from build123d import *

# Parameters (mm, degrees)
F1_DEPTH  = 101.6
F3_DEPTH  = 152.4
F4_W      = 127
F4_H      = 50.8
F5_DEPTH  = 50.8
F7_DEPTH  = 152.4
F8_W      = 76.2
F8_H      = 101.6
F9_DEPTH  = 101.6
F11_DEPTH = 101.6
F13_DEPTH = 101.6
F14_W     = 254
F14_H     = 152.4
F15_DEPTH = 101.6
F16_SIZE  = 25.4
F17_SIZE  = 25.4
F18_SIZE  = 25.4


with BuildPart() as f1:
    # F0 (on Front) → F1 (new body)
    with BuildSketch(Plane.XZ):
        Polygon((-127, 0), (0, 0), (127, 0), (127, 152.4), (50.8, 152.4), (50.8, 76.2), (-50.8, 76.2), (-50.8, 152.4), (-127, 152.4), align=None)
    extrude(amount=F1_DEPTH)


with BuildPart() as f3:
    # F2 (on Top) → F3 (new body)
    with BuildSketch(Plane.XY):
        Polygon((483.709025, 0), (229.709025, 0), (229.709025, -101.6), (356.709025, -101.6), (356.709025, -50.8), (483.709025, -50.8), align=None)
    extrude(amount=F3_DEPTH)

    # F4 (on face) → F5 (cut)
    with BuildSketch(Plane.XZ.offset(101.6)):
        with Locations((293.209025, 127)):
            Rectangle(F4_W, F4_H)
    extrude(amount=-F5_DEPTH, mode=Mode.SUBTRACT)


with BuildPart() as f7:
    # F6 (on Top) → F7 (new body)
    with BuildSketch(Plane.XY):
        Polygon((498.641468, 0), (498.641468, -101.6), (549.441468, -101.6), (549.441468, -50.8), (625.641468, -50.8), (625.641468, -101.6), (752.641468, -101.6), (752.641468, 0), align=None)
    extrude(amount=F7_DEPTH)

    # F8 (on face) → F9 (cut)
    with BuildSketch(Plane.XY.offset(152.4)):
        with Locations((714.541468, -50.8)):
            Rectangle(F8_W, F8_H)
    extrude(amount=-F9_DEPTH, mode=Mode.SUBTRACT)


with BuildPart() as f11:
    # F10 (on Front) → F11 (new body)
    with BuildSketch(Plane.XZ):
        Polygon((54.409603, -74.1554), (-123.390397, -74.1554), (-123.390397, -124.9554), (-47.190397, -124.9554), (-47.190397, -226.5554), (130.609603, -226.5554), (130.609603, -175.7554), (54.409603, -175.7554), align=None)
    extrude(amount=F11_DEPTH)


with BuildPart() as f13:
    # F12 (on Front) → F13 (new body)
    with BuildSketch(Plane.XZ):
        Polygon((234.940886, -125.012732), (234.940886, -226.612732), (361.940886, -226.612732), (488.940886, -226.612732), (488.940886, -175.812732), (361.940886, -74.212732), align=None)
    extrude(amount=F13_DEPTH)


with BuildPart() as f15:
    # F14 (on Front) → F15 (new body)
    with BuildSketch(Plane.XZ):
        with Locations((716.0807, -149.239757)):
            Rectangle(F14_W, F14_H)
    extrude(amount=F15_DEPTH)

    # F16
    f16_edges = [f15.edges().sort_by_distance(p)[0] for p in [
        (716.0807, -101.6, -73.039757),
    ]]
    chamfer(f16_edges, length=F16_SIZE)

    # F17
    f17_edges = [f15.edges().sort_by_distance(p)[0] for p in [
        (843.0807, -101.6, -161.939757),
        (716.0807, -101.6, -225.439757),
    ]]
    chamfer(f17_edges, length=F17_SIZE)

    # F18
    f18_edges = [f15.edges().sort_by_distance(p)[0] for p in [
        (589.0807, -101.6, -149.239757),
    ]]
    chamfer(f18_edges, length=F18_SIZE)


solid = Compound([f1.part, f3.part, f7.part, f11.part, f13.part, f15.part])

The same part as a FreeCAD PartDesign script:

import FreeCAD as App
import Part
import Sketcher

V = App.Vector
Q = App.Units.Quantity


def edges_at(feature, points):
    """Names of the edges that pass closest to the given points."""
    edges = feature.Shape.Edges
    near = lambda p: min(range(len(edges)), key=lambda i: edges[i].distToShape(Part.Vertex(*p))[0])
    return sorted({f"Edge{near(p) + 1}" for p in points})

doc = App.newDocument("Part")
body = doc.addObject("PartDesign::Body", "Body")

# Sketch on XZ plane
sketch1 = body.newObject("Sketcher::SketchObject", "Sketch")
sketch1.AttachmentSupport = (doc.getObject("XZ_Plane"), [""])
sketch1.MapMode = "FlatFace"
sketch1.addGeometry(Part.LineSegment(V(-127, 0, 0), V(127, 0, 0)), False)
sketch1.addGeometry(Part.LineSegment(V(127, 0, 0), V(127, 152, 0)), False)
sketch1.addGeometry(Part.LineSegment(V(127, 152, 0), V(51, 152, 0)), False)
sketch1.addGeometry(Part.LineSegment(V(51, 152, 0), V(51, 76, 0)), False)
sketch1.addGeometry(Part.LineSegment(V(51, 76, 0), V(-51, 76, 0)), False)
sketch1.addGeometry(Part.LineSegment(V(-51, 76, 0), V(-51, 152, 0)), False)
sketch1.addGeometry(Part.LineSegment(V(-51, 152, 0), V(-127, 152, 0)), False)
sketch1.addGeometry(Part.LineSegment(V(-127, 152, 0), V(-127, 0, 0)), False)
sketch1.addConstraint(Sketcher.Constraint("Coincident", 0, 2, 1, 1))
sketch1.addConstraint(Sketcher.Constraint("Coincident", 1, 2, 2, 1))
sketch1.addConstraint(Sketcher.Constraint("Coincident", 2, 2, 3, 1))
sketch1.addConstraint(Sketcher.Constraint("Coincident", 3, 2, 4, 1))
sketch1.addConstraint(Sketcher.Constraint("Coincident", 4, 2, 5, 1))
sketch1.addConstraint(Sketcher.Constraint("Coincident", 5, 2, 6, 1))
sketch1.addConstraint(Sketcher.Constraint("Coincident", 6, 2, 7, 1))
sketch1.addConstraint(Sketcher.Constraint("Coincident", 7, 2, 0, 1))
sketch1.addConstraint(Sketcher.Constraint("Horizontal", 0))
sketch1.addConstraint(Sketcher.Constraint("Vertical", 1))
sketch1.addConstraint(Sketcher.Constraint("Horizontal", 2))
sketch1.addConstraint(Sketcher.Constraint("Vertical", 3))
sketch1.addConstraint(Sketcher.Constraint("Horizontal", 4))
sketch1.addConstraint(Sketcher.Constraint("Vertical", 5))
sketch1.addConstraint(Sketcher.Constraint("Horizontal", 6))
sketch1.addConstraint(Sketcher.Constraint("Vertical", 7))
sketch1.addConstraint(Sketcher.Constraint("Symmetric", 0, 2, 7, 2, -1, 1))
sketch1.addConstraint(Sketcher.Constraint("Symmetric", 2, 2, 5, 2, -2))
sketch1.addConstraint(Sketcher.Constraint("Equal", 6, 3))
sketch1.addConstraint(Sketcher.Constraint("DistanceX", 0, 1, 0, 2, Q("10 in")))
sketch1.addConstraint(Sketcher.Constraint("DistanceX", 2, 2, 2, 1, Q("3 in")))
sketch1.addConstraint(Sketcher.Constraint("DistanceY", 1, 1, 1, 2, Q("6 in")))
pad1 = body.newObject("PartDesign::Pad", "Pad")
pad1.Profile = sketch1
pad1.Length = Q("4 in")
body2 = doc.addObject("PartDesign::Body", "Body001")

# Sketch on XY plane
sketch2 = body2.newObject("Sketcher::SketchObject", "Sketch001")
sketch2.AttachmentSupport = (doc.getObject("XY_Plane001"), [""])
sketch2.MapMode = "FlatFace"
sketch2.addGeometry(Part.LineSegment(V(484, 0, 0), V(230, 0, 0)), False)
sketch2.addGeometry(Part.LineSegment(V(230, 0, 0), V(230, -102, 0)), False)
sketch2.addGeometry(Part.LineSegment(V(230, -102, 0), V(357, -102, 0)), False)
sketch2.addGeometry(Part.LineSegment(V(357, -102, 0), V(357, -51, 0)), False)
sketch2.addGeometry(Part.LineSegment(V(357, -51, 0), V(484, -51, 0)), False)
sketch2.addGeometry(Part.LineSegment(V(484, -51, 0), V(484, 0, 0)), False)
sketch2.addConstraint(Sketcher.Constraint("Coincident", 0, 2, 1, 1))
sketch2.addConstraint(Sketcher.Constraint("Coincident", 1, 2, 2, 1))
sketch2.addConstraint(Sketcher.Constraint("Coincident", 2, 2, 3, 1))
sketch2.addConstraint(Sketcher.Constraint("Coincident", 3, 2, 4, 1))
sketch2.addConstraint(Sketcher.Constraint("Coincident", 4, 2, 5, 1))
sketch2.addConstraint(Sketcher.Constraint("Coincident", 5, 2, 0, 1))
sketch2.addConstraint(Sketcher.Constraint("Horizontal", 0))
sketch2.addConstraint(Sketcher.Constraint("Vertical", 1))
sketch2.addConstraint(Sketcher.Constraint("Horizontal", 2))
sketch2.addConstraint(Sketcher.Constraint("Vertical", 3))
sketch2.addConstraint(Sketcher.Constraint("Horizontal", 4))
sketch2.addConstraint(Sketcher.Constraint("Vertical", 5))
sketch2.addConstraint(Sketcher.Constraint("PointOnObject", 0, 2, -1))
sketch2.addConstraint(Sketcher.Constraint("Equal", 2, 4))
sketch2.addConstraint(Sketcher.Constraint("Equal", 3, 5))
sketch2.addConstraint(Sketcher.Constraint("DistanceX", 0, 2, 0, 1, Q("10 in")))
sketch2.addConstraint(Sketcher.Constraint("DistanceY", 1, 2, 1, 1, Q("4 in")))
sketch2.addConstraint(Sketcher.Constraint("DistanceX", -1, 1, 0, 2, 229.709025))
pad2 = body2.newObject("PartDesign::Pad", "Pad001")
pad2.Profile = sketch2
pad2.Length = Q("6 in")

# Sketch on XZ plane
sketch3 = body2.newObject("Sketcher::SketchObject", "Sketch002")
sketch3.AttachmentSupport = (doc.getObject("XZ_Plane001"), [""])
sketch3.MapMode = "FlatFace"
sketch3.AttachmentOffset = App.Placement(V(0, 0, 4 * 25.4), App.Rotation())
sketch3.addGeometry(Part.LineSegment(V(230, 152, 0), V(230, 102, 0)), False)
sketch3.addGeometry(Part.LineSegment(V(230, 102, 0), V(357, 102, 0)), False)
sketch3.addGeometry(Part.LineSegment(V(357, 102, 0), V(357, 152, 0)), False)
sketch3.addGeometry(Part.LineSegment(V(357, 152, 0), V(230, 152, 0)), False)
sketch3.addConstraint(Sketcher.Constraint("Coincident", 0, 2, 1, 1))
sketch3.addConstraint(Sketcher.Constraint("Coincident", 1, 2, 2, 1))
sketch3.addConstraint(Sketcher.Constraint("Coincident", 2, 2, 3, 1))
sketch3.addConstraint(Sketcher.Constraint("Coincident", 3, 2, 0, 1))
sketch3.addConstraint(Sketcher.Constraint("Vertical", 0))
sketch3.addConstraint(Sketcher.Constraint("Horizontal", 1))
sketch3.addConstraint(Sketcher.Constraint("Vertical", 2))
sketch3.addConstraint(Sketcher.Constraint("Horizontal", 3))
sketch3.addConstraint(Sketcher.Constraint("DistanceX", 1, 1, 1, 2, Q("5 in")))
sketch3.addConstraint(Sketcher.Constraint("DistanceY", 0, 2, 0, 1, Q("2 in")))
sketch3.addConstraint(Sketcher.Constraint("DistanceY", -1, 1, 0, 2, Q("4 in")))
sketch3.addConstraint(Sketcher.Constraint("DistanceX", -1, 1, 0, 2, 229.709025))
pocket1 = body2.newObject("PartDesign::Pocket", "Pocket")
pocket1.Profile = sketch3
pocket1.Length = Q("2 in")
body3 = doc.addObject("PartDesign::Body", "Body002")

# Sketch on XY plane
sketch4 = body3.newObject("Sketcher::SketchObject", "Sketch003")
sketch4.AttachmentSupport = (doc.getObject("XY_Plane002"), [""])
sketch4.MapMode = "FlatFace"
sketch4.addGeometry(Part.LineSegment(V(499, 0, 0), V(499, -102, 0)), False)
sketch4.addGeometry(Part.LineSegment(V(499, -102, 0), V(549, -102, 0)), False)
sketch4.addGeometry(Part.LineSegment(V(549, -102, 0), V(549, -51, 0)), False)
sketch4.addGeometry(Part.LineSegment(V(549, -51, 0), V(626, -51, 0)), False)
sketch4.addGeometry(Part.LineSegment(V(626, -51, 0), V(626, -102, 0)), False)
sketch4.addGeometry(Part.LineSegment(V(626, -102, 0), V(753, -102, 0)), False)
sketch4.addGeometry(Part.LineSegment(V(753, -102, 0), V(753, 0, 0)), False)
sketch4.addGeometry(Part.LineSegment(V(753, 0, 0), V(499, 0, 0)), False)
sketch4.addConstraint(Sketcher.Constraint("Coincident", 0, 2, 1, 1))
sketch4.addConstraint(Sketcher.Constraint("Coincident", 1, 2, 2, 1))
sketch4.addConstraint(Sketcher.Constraint("Coincident", 2, 2, 3, 1))
sketch4.addConstraint(Sketcher.Constraint("Coincident", 3, 2, 4, 1))
sketch4.addConstraint(Sketcher.Constraint("Coincident", 4, 2, 5, 1))
sketch4.addConstraint(Sketcher.Constraint("Coincident", 5, 2, 6, 1))
sketch4.addConstraint(Sketcher.Constraint("Coincident", 6, 2, 7, 1))
sketch4.addConstraint(Sketcher.Constraint("Coincident", 7, 2, 0, 1))
sketch4.addConstraint(Sketcher.Constraint("Vertical", 0))
sketch4.addConstraint(Sketcher.Constraint("Horizontal", 1))
sketch4.addConstraint(Sketcher.Constraint("Vertical", 2))
sketch4.addConstraint(Sketcher.Constraint("Horizontal", 3))
sketch4.addConstraint(Sketcher.Constraint("Vertical", 4))
sketch4.addConstraint(Sketcher.Constraint("Horizontal", 5))
sketch4.addConstraint(Sketcher.Constraint("Vertical", 6))
sketch4.addConstraint(Sketcher.Constraint("Horizontal", 7))
sketch4.addConstraint(Sketcher.Constraint("PointOnObject", 6, 2, -1))
sketch4.addConstraint(Sketcher.Constraint("Horizontal", 1, 2, 4, 2))
sketch4.addConstraint(Sketcher.Constraint("Equal", 1, 2))
sketch4.addConstraint(Sketcher.Constraint("DistanceX", 1, 1, 1, 2, Q("2 in")))
sketch4.addConstraint(Sketcher.Constraint("DistanceX", 3, 1, 3, 2, Q("3 in")))
sketch4.addConstraint(Sketcher.Constraint("DistanceX", 5, 1, 5, 2, Q("5 in")))
sketch4.addConstraint(Sketcher.Constraint("DistanceY", 0, 2, 0, 1, Q("4 in")))
sketch4.addConstraint(Sketcher.Constraint("DistanceX", -1, 1, 1, 2, 549.441468))
pad3 = body3.newObject("PartDesign::Pad", "Pad002")
pad3.Profile = sketch4
pad3.Length = Q("6 in")

# Sketch on XY plane
sketch5 = body3.newObject("Sketcher::SketchObject", "Sketch004")
sketch5.AttachmentSupport = (doc.getObject("XY_Plane002"), [""])
sketch5.MapMode = "FlatFace"
sketch5.AttachmentOffset = App.Placement(V(0, 0, 6 * 25.4), App.Rotation())
sketch5.addGeometry(Part.LineSegment(V(676, 0, 0), V(676, -102, 0)), False)
sketch5.addGeometry(Part.LineSegment(V(676, -102, 0), V(753, -102, 0)), False)
sketch5.addGeometry(Part.LineSegment(V(753, -102, 0), V(753, 0, 0)), False)
sketch5.addGeometry(Part.LineSegment(V(753, 0, 0), V(676, 0, 0)), False)
sketch5.addConstraint(Sketcher.Constraint("Coincident", 0, 2, 1, 1))
sketch5.addConstraint(Sketcher.Constraint("Coincident", 1, 2, 2, 1))
sketch5.addConstraint(Sketcher.Constraint("Coincident", 2, 2, 3, 1))
sketch5.addConstraint(Sketcher.Constraint("Coincident", 3, 2, 0, 1))
sketch5.addConstraint(Sketcher.Constraint("Vertical", 0))
sketch5.addConstraint(Sketcher.Constraint("Horizontal", 1))
sketch5.addConstraint(Sketcher.Constraint("Vertical", 2))
sketch5.addConstraint(Sketcher.Constraint("Horizontal", 3))
sketch5.addConstraint(Sketcher.Constraint("PointOnObject", 2, 2, -1))
sketch5.addConstraint(Sketcher.Constraint("DistanceX", 1, 1, 1, 2, Q("3 in")))
sketch5.addConstraint(Sketcher.Constraint("DistanceY", 0, 2, 0, 1, Q("4 in")))
sketch5.addConstraint(Sketcher.Constraint("DistanceX", -1, 1, 0, 2, 676.441468))
pocket2 = body3.newObject("PartDesign::Pocket", "Pocket001")
pocket2.Profile = sketch5
pocket2.Length = Q("4 in")
body4 = doc.addObject("PartDesign::Body", "Body003")

# Sketch on XZ plane
sketch6 = body4.newObject("Sketcher::SketchObject", "Sketch005")
sketch6.AttachmentSupport = (doc.getObject("XZ_Plane003"), [""])
sketch6.MapMode = "FlatFace"
sketch6.addGeometry(Part.LineSegment(V(54, -74, 0), V(-123, -74, 0)), False)
sketch6.addGeometry(Part.LineSegment(V(-123, -74, 0), V(-123, -125, 0)), False)
sketch6.addGeometry(Part.LineSegment(V(-123, -125, 0), V(-47, -125, 0)), False)
sketch6.addGeometry(Part.LineSegment(V(-47, -125, 0), V(-47, -227, 0)), False)
sketch6.addGeometry(Part.LineSegment(V(-47, -227, 0), V(131, -227, 0)), False)
sketch6.addGeometry(Part.LineSegment(V(131, -227, 0), V(131, -176, 0)), False)
sketch6.addGeometry(Part.LineSegment(V(131, -176, 0), V(54, -176, 0)), False)
sketch6.addGeometry(Part.LineSegment(V(54, -176, 0), V(54, -74, 0)), False)
sketch6.addConstraint(Sketcher.Constraint("Coincident", 0, 2, 1, 1))
sketch6.addConstraint(Sketcher.Constraint("Coincident", 1, 2, 2, 1))
sketch6.addConstraint(Sketcher.Constraint("Coincident", 2, 2, 3, 1))
sketch6.addConstraint(Sketcher.Constraint("Coincident", 3, 2, 4, 1))
sketch6.addConstraint(Sketcher.Constraint("Coincident", 4, 2, 5, 1))
sketch6.addConstraint(Sketcher.Constraint("Coincident", 5, 2, 6, 1))
sketch6.addConstraint(Sketcher.Constraint("Coincident", 6, 2, 7, 1))
sketch6.addConstraint(Sketcher.Constraint("Coincident", 7, 2, 0, 1))
sketch6.addConstraint(Sketcher.Constraint("Horizontal", 0))
sketch6.addConstraint(Sketcher.Constraint("Vertical", 1))
sketch6.addConstraint(Sketcher.Constraint("Horizontal", 2))
sketch6.addConstraint(Sketcher.Constraint("Vertical", 3))
sketch6.addConstraint(Sketcher.Constraint("Horizontal", 4))
sketch6.addConstraint(Sketcher.Constraint("Vertical", 5))
sketch6.addConstraint(Sketcher.Constraint("Horizontal", 6))
sketch6.addConstraint(Sketcher.Constraint("Vertical", 7))
sketch6.addConstraint(Sketcher.Constraint("Equal", 0, 4))
sketch6.addConstraint(Sketcher.Constraint("Equal", 1, 5))
sketch6.addConstraint(Sketcher.Constraint("DistanceX", 0, 2, 0, 1, Q("7 in")))
sketch6.addConstraint(Sketcher.Constraint("DistanceX", 2, 1, 2, 2, Q("3 in")))
sketch6.addConstraint(Sketcher.Constraint("DistanceY", 1, 2, 1, 1, Q("2 in")))
sketch6.addConstraint(Sketcher.Constraint("DistanceY", 3, 2, 3, 1, Q("4 in")))
sketch6.addConstraint(Sketcher.Constraint("DistanceY", 0, 2, -1, 1, 74.1554))
sketch6.addConstraint(Sketcher.Constraint("DistanceX", 0, 2, -1, 1, 123.390397))
pad4 = body4.newObject("PartDesign::Pad", "Pad003")
pad4.Profile = sketch6
pad4.Length = Q("4 in")
body5 = doc.addObject("PartDesign::Body", "Body004")

# Sketch on XZ plane
sketch7 = body5.newObject("Sketcher::SketchObject", "Sketch006")
sketch7.AttachmentSupport = (doc.getObject("XZ_Plane004"), [""])
sketch7.MapMode = "FlatFace"
sketch7.addGeometry(Part.LineSegment(V(235, -125, 0), V(235, -227, 0)), False)
sketch7.addGeometry(Part.LineSegment(V(235, -227, 0), V(489, -227, 0)), False)
sketch7.addGeometry(Part.LineSegment(V(489, -227, 0), V(489, -176, 0)), False)
sketch7.addGeometry(Part.LineSegment(V(489, -176, 0), V(362, -74, 0)), False)
sketch7.addGeometry(Part.LineSegment(V(362, -74, 0), V(235, -125, 0)), False)
sketch7.addConstraint(Sketcher.Constraint("Coincident", 0, 2, 1, 1))
sketch7.addConstraint(Sketcher.Constraint("Coincident", 1, 2, 2, 1))
sketch7.addConstraint(Sketcher.Constraint("Coincident", 2, 2, 3, 1))
sketch7.addConstraint(Sketcher.Constraint("Coincident", 3, 2, 4, 1))
sketch7.addConstraint(Sketcher.Constraint("Coincident", 4, 2, 0, 1))
sketch7.addConstraint(Sketcher.Constraint("Vertical", 0))
sketch7.addConstraint(Sketcher.Constraint("Horizontal", 1))
sketch7.addConstraint(Sketcher.Constraint("Vertical", 2))
sketch7.addConstraint(Sketcher.Constraint("DistanceX", 1, 1, 1, 2, Q("10 in")))
sketch7.addConstraint(Sketcher.Constraint("DistanceY", 0, 2, 0, 1, Q("4 in")))
sketch7.addConstraint(Sketcher.Constraint("DistanceY", 2, 1, 2, 2, Q("2 in")))
sketch7.addConstraint(Sketcher.Constraint("DistanceX", 3, 2, 2, 2, Q("5 in")))
sketch7.addConstraint(Sketcher.Constraint("DistanceY", 2, 2, 3, 2, Q("4 in")))
sketch7.addConstraint(Sketcher.Constraint("DistanceY", 0, 2, -1, 1, 226.612732))
sketch7.addConstraint(Sketcher.Constraint("DistanceX", -1, 1, 0, 2, 234.940886))
pad5 = body5.newObject("PartDesign::Pad", "Pad004")
pad5.Profile = sketch7
pad5.Length = Q("4 in")
body6 = doc.addObject("PartDesign::Body", "Body005")

# Sketch on XZ plane
sketch8 = body6.newObject("Sketcher::SketchObject", "Sketch007")
sketch8.AttachmentSupport = (doc.getObject("XZ_Plane005"), [""])
sketch8.MapMode = "FlatFace"
sketch8.addGeometry(Part.LineSegment(V(589, -73, 0), V(589, -225, 0)), False)
sketch8.addGeometry(Part.LineSegment(V(589, -225, 0), V(843, -225, 0)), False)
sketch8.addGeometry(Part.LineSegment(V(843, -225, 0), V(843, -73, 0)), False)
sketch8.addGeometry(Part.LineSegment(V(843, -73, 0), V(589, -73, 0)), False)
sketch8.addConstraint(Sketcher.Constraint("Coincident", 0, 2, 1, 1))
sketch8.addConstraint(Sketcher.Constraint("Coincident", 1, 2, 2, 1))
sketch8.addConstraint(Sketcher.Constraint("Coincident", 2, 2, 3, 1))
sketch8.addConstraint(Sketcher.Constraint("Coincident", 3, 2, 0, 1))
sketch8.addConstraint(Sketcher.Constraint("Vertical", 0))
sketch8.addConstraint(Sketcher.Constraint("Horizontal", 1))
sketch8.addConstraint(Sketcher.Constraint("Vertical", 2))
sketch8.addConstraint(Sketcher.Constraint("Horizontal", 3))
sketch8.addConstraint(Sketcher.Constraint("DistanceX", 1, 1, 1, 2, Q("10 in")))
sketch8.addConstraint(Sketcher.Constraint("DistanceY", 0, 2, 0, 1, Q("6 in")))
sketch8.addConstraint(Sketcher.Constraint("DistanceX", -1, 1, 0, 2, 589.0807))
sketch8.addConstraint(Sketcher.Constraint("DistanceY", 0, 2, -1, 1, 225.439757))
pad6 = body6.newObject("PartDesign::Pad", "Pad005")
pad6.Profile = sketch8
pad6.Length = Q("4 in")
doc.recompute()

chamfer = body6.newObject("PartDesign::Chamfer", "Chamfer")
chamfer.Base = (pad6, edges_at(pad6, [(716.081, -101.6, -73.04)]))
chamfer.Size = Q("1 in")
doc.recompute()

chamfer2 = body6.newObject("PartDesign::Chamfer", "Chamfer001")
chamfer2.Base = (chamfer, edges_at(chamfer, [(843.081, -101.6, -161.94), (716.081, -101.6, -225.44)]))
chamfer2.Size = Q("1 in")
doc.recompute()

chamfer3 = body6.newObject("PartDesign::Chamfer", "Chamfer002")
chamfer3.Base = (chamfer2, edges_at(chamfer2, [(589.081, -101.6, -149.24)]))
chamfer3.Size = Q("1 in")

doc.recompute()
